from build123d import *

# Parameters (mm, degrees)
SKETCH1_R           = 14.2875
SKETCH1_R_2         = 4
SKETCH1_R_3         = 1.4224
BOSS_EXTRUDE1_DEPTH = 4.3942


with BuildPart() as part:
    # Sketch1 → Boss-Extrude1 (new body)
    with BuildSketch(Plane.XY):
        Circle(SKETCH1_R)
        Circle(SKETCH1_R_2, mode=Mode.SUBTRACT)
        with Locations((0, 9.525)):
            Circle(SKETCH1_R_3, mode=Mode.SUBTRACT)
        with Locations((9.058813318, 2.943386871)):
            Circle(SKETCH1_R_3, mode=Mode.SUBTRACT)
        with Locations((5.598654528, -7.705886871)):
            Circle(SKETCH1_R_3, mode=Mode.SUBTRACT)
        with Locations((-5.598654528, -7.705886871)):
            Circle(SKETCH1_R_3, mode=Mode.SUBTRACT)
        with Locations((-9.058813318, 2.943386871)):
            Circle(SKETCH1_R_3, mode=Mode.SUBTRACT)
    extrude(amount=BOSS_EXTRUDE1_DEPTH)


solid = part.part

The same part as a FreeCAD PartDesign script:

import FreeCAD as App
import Part
import Sketcher
Q = App.Units.Quantity

doc = App.newDocument("Part")
body = doc.addObject("PartDesign::Body", "Body")

sketch1 = body.newObject("Sketcher::SketchObject", "Sketch")
sketch1.AttachmentSupport = (doc.getObject("XY_Plane"), [""])
sketch1.MapMode = "FlatFace"
sketch1.addGeometry([
    Part.Circle(App.Vector(0, 0, 0), App.Vector(0, 0, 1), 14.3),
    Part.Circle(App.Vector(-5.6, -7.7, 0), App.Vector(0, 0, 1), 1.4),
    Part.Circle(App.Vector(5.6, -7.7, 0), App.Vector(0, 0, 1), 1.4),
    Part.Circle(App.Vector(0, 0, 0), App.Vector(0, 0, 1), 4),
    Part.Circle(App.Vector(-9.1, 2.9, 0), App.Vector(0, 0, 1), 1.4),
    Part.Circle(App.Vector(9.1, 2.9, 0), App.Vector(0, 0, 1), 1.4),
    Part.Circle(App.Vector(0, 9.5, 0), App.Vector(0, 0, 1), 1.4),
], False)
sketch1.addConstraint([
    Sketcher.Constraint("Coincident", 0, 3, -1, 1),
    Sketcher.Constraint("Coincident", 3, 3, -1, 1),
    Sketcher.Constraint("Equal", 1, 2),
    Sketcher.Constraint("Equal", 2, 4),
    Sketcher.Constraint("Equal", 4, 5),
    Sketcher.Constraint("Equal", 5, 6),
    Sketcher.Constraint("Symmetric", 1, 3, 2, 3, -2),
    Sketcher.Constraint("Symmetric", 4, 3, 5, 3, -2),
    Sketcher.Constraint("PointOnObject", 6, 3, -2),
    Sketcher.Constraint("Diameter", 0, Q("1.125 in")),
    Sketcher.Constraint("Diameter", 1, Q("0.112 in")),
    Sketcher.Constraint("Diameter", 3, 8.0),
    Sketcher.Constraint("DistanceY", -1, 1, 6, 3, Q("0.375 in")),
    Sketcher.Constraint("DistanceX", 1, 3, 2, 3, 11.197309),
    Sketcher.Constraint("DistanceX", 4, 3, 1, 3, 3.460159),
    Sketcher.Constraint("DistanceY", 1, 3, -1, 1, 7.705887),
    Sketcher.Constraint("DistanceY", -1, 1, 4, 3, 2.943387),
])
pad1 = body.newObject("PartDesign::Pad", "Pad")
pad1.Profile = sketch1
pad1.Length = Q("0.173 in")

doc.recompute()
